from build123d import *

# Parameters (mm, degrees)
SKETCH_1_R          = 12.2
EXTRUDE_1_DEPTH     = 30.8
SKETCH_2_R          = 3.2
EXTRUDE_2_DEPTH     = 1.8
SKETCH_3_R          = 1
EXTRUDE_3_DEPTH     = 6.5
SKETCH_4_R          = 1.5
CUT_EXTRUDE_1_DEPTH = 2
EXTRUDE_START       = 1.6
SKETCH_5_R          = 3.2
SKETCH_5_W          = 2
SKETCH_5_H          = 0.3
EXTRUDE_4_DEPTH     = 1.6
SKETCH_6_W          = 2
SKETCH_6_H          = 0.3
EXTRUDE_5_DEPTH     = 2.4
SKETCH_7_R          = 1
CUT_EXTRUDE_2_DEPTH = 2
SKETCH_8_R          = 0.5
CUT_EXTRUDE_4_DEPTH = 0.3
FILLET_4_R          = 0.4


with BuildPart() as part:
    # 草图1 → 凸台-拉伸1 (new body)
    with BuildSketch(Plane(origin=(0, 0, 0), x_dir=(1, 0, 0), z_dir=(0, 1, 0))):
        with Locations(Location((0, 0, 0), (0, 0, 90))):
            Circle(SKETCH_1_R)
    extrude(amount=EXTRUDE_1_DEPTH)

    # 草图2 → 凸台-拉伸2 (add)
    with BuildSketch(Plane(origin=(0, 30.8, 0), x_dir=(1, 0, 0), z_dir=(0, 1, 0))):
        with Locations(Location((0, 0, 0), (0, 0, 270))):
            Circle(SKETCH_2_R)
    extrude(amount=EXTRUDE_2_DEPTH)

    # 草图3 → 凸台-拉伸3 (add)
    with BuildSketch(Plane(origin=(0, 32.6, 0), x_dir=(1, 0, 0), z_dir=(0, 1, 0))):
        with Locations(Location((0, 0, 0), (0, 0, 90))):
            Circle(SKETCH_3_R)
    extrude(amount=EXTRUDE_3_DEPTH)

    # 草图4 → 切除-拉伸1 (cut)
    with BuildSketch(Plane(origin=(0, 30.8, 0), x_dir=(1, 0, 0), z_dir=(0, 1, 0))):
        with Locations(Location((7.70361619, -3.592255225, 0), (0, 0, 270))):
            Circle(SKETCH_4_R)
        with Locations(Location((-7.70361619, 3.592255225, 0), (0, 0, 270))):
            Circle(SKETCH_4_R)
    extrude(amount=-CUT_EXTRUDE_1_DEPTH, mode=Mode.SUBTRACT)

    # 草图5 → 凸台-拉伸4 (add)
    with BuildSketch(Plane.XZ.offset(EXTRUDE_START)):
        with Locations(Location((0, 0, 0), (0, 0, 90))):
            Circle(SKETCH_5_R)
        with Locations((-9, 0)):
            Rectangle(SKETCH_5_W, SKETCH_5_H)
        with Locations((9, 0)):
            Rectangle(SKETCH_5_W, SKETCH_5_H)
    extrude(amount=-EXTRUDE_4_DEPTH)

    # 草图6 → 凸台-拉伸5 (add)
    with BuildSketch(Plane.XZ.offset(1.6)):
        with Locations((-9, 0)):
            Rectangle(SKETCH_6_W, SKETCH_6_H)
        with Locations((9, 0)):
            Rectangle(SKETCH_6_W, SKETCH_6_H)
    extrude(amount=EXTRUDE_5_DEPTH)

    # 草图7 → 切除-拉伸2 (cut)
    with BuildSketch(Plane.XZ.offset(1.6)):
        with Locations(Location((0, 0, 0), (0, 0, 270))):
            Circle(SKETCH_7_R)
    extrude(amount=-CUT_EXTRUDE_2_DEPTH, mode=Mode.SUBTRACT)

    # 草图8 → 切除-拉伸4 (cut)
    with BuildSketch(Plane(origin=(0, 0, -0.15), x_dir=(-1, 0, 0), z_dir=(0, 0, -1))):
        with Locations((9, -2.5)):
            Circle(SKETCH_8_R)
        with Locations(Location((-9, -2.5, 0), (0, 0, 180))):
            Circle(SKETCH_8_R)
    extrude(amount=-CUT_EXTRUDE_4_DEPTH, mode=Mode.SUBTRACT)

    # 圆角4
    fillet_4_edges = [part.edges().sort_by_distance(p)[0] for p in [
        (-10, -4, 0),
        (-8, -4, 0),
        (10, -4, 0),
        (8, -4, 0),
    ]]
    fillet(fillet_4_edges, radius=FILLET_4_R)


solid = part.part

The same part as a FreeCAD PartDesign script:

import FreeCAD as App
import Part
import Sketcher
from FreeCAD import Vector
Q = App.Units.Quantity


def edges_at(feature, points):
    """Names of the edges that pass closest to the given points."""
    edges = feature.Shape.Edges
    near = lambda p: min(range(len(edges)), key=lambda i: edges[i].distToShape(Part.Vertex(*p))[0])
    return sorted({f"Edge{near(p) + 1}" for p in points})

doc = App.newDocument("Part")
body = doc.addObject("PartDesign::Body", "Body")

# Sketch on XZ plane
sketch1 = body.newObject("Sketcher::SketchObject", "Sketch")
sketch1.AttachmentSupport = (doc.getObject("XZ_Plane"), [""])
sketch1.MapMode = "FlatFace"
sketch1.addGeometry(Part.Circle(Vector(0, 0, 0), Vector(0, 0, 1), 12), False)
sketch1.addConstraint(Sketcher.Constraint("Coincident", 0, 3, -1, 1))
sketch1.addConstraint(Sketcher.Constraint("Diameter", 0, Q("24.4 mm")))
pad1 = body.newObject("PartDesign::Pad", "Pad")
pad1.Profile = sketch1
pad1.Length = 30.8
pad1.Reversed = True

# Sketch on XZ plane
sketch2 = body.newObject("Sketcher::SketchObject", "Sketch001")
sketch2.AttachmentSupport = (doc.getObject("XZ_Plane"), [""])
sketch2.MapMode = "FlatFace"
sketch2.AttachmentOffset = App.Placement(Vector(0, 0, -30.8), App.Rotation())
sketch2.addGeometry(Part.Circle(Vector(0, 0, 0), Vector(0, 0, 1), 3.2), False)
sketch2.addConstraint(Sketcher.Constraint("Coincident", 0, 3, -1, 1))
sketch2.addConstraint(Sketcher.Constraint("Diameter", 0, Q("6.4 mm")))
pad2 = body.newObject("PartDesign::Pad", "Pad001")
pad2.Profile = sketch2
pad2.Length = 1.8
pad2.Reversed = True

# Sketch on XZ plane
sketch3 = body.newObject("Sketcher::SketchObject", "Sketch002")
sketch3.AttachmentSupport = (doc.getObject("XZ_Plane"), [""])
sketch3.MapMode = "FlatFace"
sketch3.AttachmentOffset = App.Placement(Vector(0, 0, -32.6), App.Rotation())
sketch3.addGeometry(Part.Circle(Vector(0, 0, 0), Vector(0, 0, 1), 1), False)
sketch3.addConstraint(Sketcher.Constraint("Coincident", 0, 3, -1, 1))
sketch3.addConstraint(Sketcher.Constraint("Diameter", 0, Q("2 mm")))
pad3 = body.newObject("PartDesign::Pad", "Pad002")
pad3.Profile = sketch3
pad3.Length = 6.5
pad3.Reversed = True

# Sketch on XZ plane
sketch4 = body.newObject("Sketcher::SketchObject", "Sketch003")
sketch4.AttachmentSupport = (doc.getObject("XZ_Plane"), [""])
sketch4.MapMode = "FlatFace"
sketch4.AttachmentOffset = App.Placement(Vector(0, 0, -30.8), App.Rotation())
sketch4.addGeometry(Part.Circle(Vector(7.7, 3.6, 0), Vector(0, 0, 1), 1.5), False)
sketch4.addGeometry(Part.Circle(Vector(-7.7, -3.6, 0), Vector(0, 0, 1), 1.5), False)
sketch4.addConstraint(Sketcher.Constraint("Equal", 0, 1))
sketch4.addConstraint(Sketcher.Constraint("Symmetric", 0, 3, 1, 3, -1, 1))
sketch4.addConstraint(Sketcher.Constraint("Diameter", 0, Q("3 mm")))
sketch4.addConstraint(Sketcher.Constraint("DistanceY", 1, 3, 0, 3, Q("7.18451 mm")))
sketch4.addConstraint(Sketcher.Constraint("DistanceX", -1, 1, 0, 3, Q("7.703616 mm")))
pocket1 = body.newObject("PartDesign::Pocket", "Pocket")
pocket1.Profile = sketch4
pocket1.Length = 2
pocket1.Reversed = True

# Sketch on XZ plane
sketch5 = body.newObject("Sketcher::SketchObject", "Sketch004")
sketch5.AttachmentSupport = (doc.getObject("XZ_Plane"), [""])
sketch5.MapMode = "FlatFace"
sketch5.AttachmentOffset = App.Placement(Vector(0, 0, 1.6), App.Rotation())
sketch5.addGeometry(Part.Circle(Vector(0, 0, 0), Vector(0, 0, 1), 3.2), False)
sketch5.addGeometry(Part.LineSegment(Vector(-10, 0.15, 0), Vector(-10, -0.15, 0)), False)
sketch5.addGeometry(Part.LineSegment(Vector(-10, -0.15, 0), Vector(-8, -0.15, 0)), False)
sketch5.addGeometry(Part.LineSegment(Vector(-8, -0.15, 0), Vector(-8, 0.15, 0)), False)
sketch5.addGeometry(Part.LineSegment(Vector(-8, 0.15, 0), Vector(-10, 0.15, 0)), False)
sketch5.addGeometry(Part.LineSegment(Vector(8, 0.15, 0), Vector(8, -0.15, 0)), False)
sketch5.addGeometry(Part.LineSegment(Vector(8, -0.15, 0), Vector(10, -0.15, 0)), False)
sketch5.addGeometry(Part.LineSegment(Vector(10, -0.15, 0), Vector(10, 0.15, 0)), False)
sketch5.addGeometry(Part.LineSegment(Vector(10, 0.15, 0), Vector(8, 0.15, 0)), False)
sketch5.addConstraint(Sketcher.Constraint("Coincident", 1, 2, 2, 1))
sketch5.addConstraint(Sketcher.Constraint("Coincident", 2, 2, 3, 1))
sketch5.addConstraint(Sketcher.Constraint("Coincident", 3, 2, 4, 1))
sketch5.addConstraint(Sketcher.Constraint("Coincident", 4, 2, 1, 1))
sketch5.addConstraint(Sketcher.Constraint("Coincident", 5, 2, 6, 1))
sketch5.addConstraint(Sketcher.Constraint("Coincident", 6, 2, 7, 1))
sketch5.addConstraint(Sketcher.Constraint("Coincident", 7, 2, 8, 1))
sketch5.addConstraint(Sketcher.Constraint("Coincident", 8, 2, 5, 1))
sketch5.addConstraint(Sketcher.Constraint("Vertical", 1))
sketch5.addConstraint(Sketcher.Constraint("Horizontal", 2))
sketch5.addConstraint(Sketcher.Constraint("Vertical", 3))
sketch5.addConstraint(Sketcher.Constraint("Horizontal", 4))
sketch5.addConstraint(Sketcher.Constraint("Vertical", 5))
sketch5.addConstraint(Sketcher.Constraint("Horizontal", 6))
sketch5.addConstraint(Sketcher.Constraint("Vertical", 7))
sketch5.addConstraint(Sketcher.Constraint("Horizontal", 8))
sketch5.addConstraint(Sketcher.Constraint("Coincident", 0, 3, -1, 1))
sketch5.addConstraint(Sketcher.Constraint("Symmetric", 3, 2, 5, 2, -1, 1))
sketch5.addConstraint(Sketcher.Constraint("Symmetric", 1, 2, 7, 2, -1, 1))
sketch5.addConstraint(Sketcher.Constraint("Horizontal", 2, 2, 5, 2))
sketch5.addConstraint(Sketcher.Constraint("Diameter", 0, Q("6.4 mm")))
sketch5.addConstraint(Sketcher.Constraint("DistanceX", 2, 1, 2, 2, Q("2 mm")))
sketch5.addConstraint(Sketcher.Constraint("DistanceY", 1, 2, 1, 1, Q("0.3 mm")))
sketch5.addConstraint(Sketcher.Constraint("DistanceX", 1, 2, -1, 1, Q("10 mm")))
pad4 = body.newObject("PartDesign::Pad", "Pad003")
pad4.Profile = sketch5
pad4.Length = 1.6
pad4.Reversed = True

# Sketch on XZ plane
sketch6 = body.newObject("Sketcher::SketchObject", "Sketch005")
sketch6.AttachmentSupport = (doc.getObject("XZ_Plane"), [""])
sketch6.MapMode = "FlatFace"
sketch6.AttachmentOffset = App.Placement(Vector(0, 0, 1.6), App.Rotation())
sketch6.addGeometry(Part.LineSegment(Vector(-10, 0.15, 0), Vector(-10, -0.15, 0)), False)
sketch6.addGeometry(Part.LineSegment(Vector(-10, -0.15, 0), Vector(-8, -0.15, 0)), False)
sketch6.addGeometry(Part.LineSegment(Vector(-8, -0.15, 0), Vector(-8, 0.15, 0)), False)
sketch6.addGeometry(Part.LineSegment(Vector(-8, 0.15, 0), Vector(-10, 0.15, 0)), False)
sketch6.addGeometry(Part.LineSegment(Vector(8, 0.15, 0), Vector(8, -0.15, 0)), False)
sketch6.addGeometry(Part.LineSegment(Vector(8, -0.15, 0), Vector(10, -0.15, 0)), False)
sketch6.addGeometry(Part.LineSegment(Vector(10, -0.15, 0), Vector(10, 0.15, 0)), False)
sketch6.addGeometry(Part.LineSegment(Vector(10, 0.15, 0), Vector(8, 0.15, 0)), False)
sketch6.addConstraint(Sketcher.Constraint("Coincident", 0, 2, 1, 1))
sketch6.addConstraint(Sketcher.Constraint("Coincident", 1, 2, 2, 1))
sketch6.addConstraint(Sketcher.Constraint("Coincident", 2, 2, 3, 1))
sketch6.addConstraint(Sketcher.Constraint("Coincident", 3, 2, 0, 1))
sketch6.addConstraint(Sketcher.Constraint("Coincident", 4, 2, 5, 1))
sketch6.addConstraint(Sketcher.Constraint("Coincident", 5, 2, 6, 1))
sketch6.addConstraint(Sketcher.Constraint("Coincident", 6, 2, 7, 1))
sketch6.addConstraint(Sketcher.Constraint("Coincident", 7, 2, 4, 1))
sketch6.addConstraint(Sketcher.Constraint("Vertical", 0))
sketch6.addConstraint(Sketcher.Constraint("Horizontal", 1))
sketch6.addConstraint(Sketcher.Constraint("Vertical", 2))
sketch6.addConstraint(Sketcher.Constraint("Horizontal", 3))
sketch6.addConstraint(Sketcher.Constraint("Vertical", 4))
sketch6.addConstraint(Sketcher.Constraint("Horizontal", 5))
sketch6.addConstraint(Sketcher.Constraint("Vertical", 6))
sketch6.addConstraint(Sketcher.Constraint("Horizontal", 7))
sketch6.addConstraint(Sketcher.Constraint("Symmetric", 2, 2, 4, 2, -1, 1))
sketch6.addConstraint(Sketcher.Constraint("Symmetric", 0, 2, 6, 2, -1, 1))
sketch6.addConstraint(Sketcher.Constraint("Horizontal", 1, 2, 4, 2))
sketch6.addConstraint(Sketcher.Constraint("DistanceX", 1, 1, 1, 2, Q("2 mm")))
sketch6.addConstraint(Sketcher.Constraint("DistanceY", 0, 2, 0, 1, Q("0.3 mm")))
sketch6.addConstraint(Sketcher.Constraint("DistanceX", 0, 2, -1, 1, Q("10 mm")))
pad5 = body.newObject("PartDesign::Pad", "Pad004")
pad5.Profile = sketch6
pad5.Length = 2.4

# Sketch on XZ plane
sketch7 = body.newObject("Sketcher::SketchObject", "Sketch006")
sketch7.AttachmentSupport = (doc.getObject("XZ_Plane"), [""])
sketch7.MapMode = "FlatFace"
sketch7.AttachmentOffset = App.Placement(Vector(0, 0, 1.6), App.Rotation())
sketch7.addGeometry(Part.Circle(Vector(0, 0, 0), Vector(0, 0, 1), 1), False)
sketch7.addConstraint(Sketcher.Constraint("Coincident", 0, 3, -1, 1))
sketch7.addConstraint(Sketcher.Constraint("Diameter", 0, Q("2 mm")))
pocket2 = body.newObject("PartDesign::Pocket", "Pocket001")
pocket2.Profile = sketch7
pocket2.Length = 2

# Sketch on XY plane
sketch8 = body.newObject("Sketcher::SketchObject", "Sketch007")
sketch8.AttachmentSupport = (doc.getObject("XY_Plane"), [""])
sketch8.MapMode = "FlatFace"
sketch8.AttachmentOffset = App.Placement(Vector(0, 0, -0.15), App.Rotation())
sketch8.addGeometry(Part.Circle(Vector(-9, -2.5, 0), Vector(0, 0, 1), 0.5), False)
sketch8.addGeometry(Part.Circle(Vector(9, -2.5, 0), Vector(0, 0, 1), 0.5), False)
sketch8.addConstraint(Sketcher.Constraint("Equal", 0, 1))
sketch8.addConstraint(Sketcher.Constraint("Symmetric", 0, 3, 1, 3, -2))
sketch8.addConstraint(Sketcher.Constraint("Diameter", 0, Q("1 mm")))
sketch8.addConstraint(Sketcher.Constraint("DistanceX", 0, 3, -1, 1, Q("9 mm")))
sketch8.addConstraint(Sketcher.Constraint("DistanceY", 0, 3, -1, 1, Q("2.5 mm")))
pocket3 = body.newObject("PartDesign::Pocket", "Pocket002")
pocket3.Profile = sketch8
pocket3.Length = 0.3
pocket3.Reversed = True
doc.recompute()

fillet = body.newObject("PartDesign::Fillet", "Fillet")
fillet.Base = (pocket3, edges_at(pocket3, [
    (-10, -4, 0),
    (-8, -4, 0),
    (10, -4, 0),
    (8, -4, 0),
]))
fillet.Radius = 0.4

doc.recompute()
